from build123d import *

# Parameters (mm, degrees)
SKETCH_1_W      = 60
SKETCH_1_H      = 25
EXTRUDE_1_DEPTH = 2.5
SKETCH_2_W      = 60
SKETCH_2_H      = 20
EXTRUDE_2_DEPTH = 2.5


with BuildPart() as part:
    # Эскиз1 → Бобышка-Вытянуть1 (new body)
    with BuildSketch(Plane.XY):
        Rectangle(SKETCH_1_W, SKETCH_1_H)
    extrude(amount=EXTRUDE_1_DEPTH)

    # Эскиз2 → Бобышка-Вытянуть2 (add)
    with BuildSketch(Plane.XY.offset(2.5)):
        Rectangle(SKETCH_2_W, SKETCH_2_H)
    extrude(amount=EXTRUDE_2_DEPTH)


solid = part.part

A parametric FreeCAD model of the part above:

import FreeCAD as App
import Part
import Sketcher

V = App.Vector

doc = App.newDocument("Part")
body = doc.addObject("PartDesign::Body", "Body")

# Sketch on XY plane
sketch1 = doc.addObject("Sketcher::SketchObject", "Sketch")
body.addObject(sketch1)
sketch1.AttachmentSupport = (doc.XY_Plane, [""])
sketch1.MapMode = "FlatFace"
sketch1.addGeometry([
    Part.LineSegment(V(-30, 12.5, 0), V(-30, -12.5, 0)),
    Part.LineSegment(V(-30, -12.5, 0), V(30, -12.5, 0)),
    Part.LineSegment(V(30, -12.5, 0), V(30, 12.5, 0)),
    Part.LineSegment(V(30, 12.5, 0), V(-30, 12.5, 0)),
], False)
sketch1.addConstraint([
    Sketcher.Constraint("Coincident", 0, 2, 1, 1),
    Sketcher.Constraint("Coincident", 1, 2, 2, 1),
    Sketcher.Constraint("Coincident", 2, 2, 3, 1),
    Sketcher.Constraint("Coincident", 3, 2, 0, 1),
    Sketcher.Constraint("Vertical", 0),
    Sketcher.Constraint("Horizontal", 1),
    Sketcher.Constraint("Vertical", 2),
    Sketcher.Constraint("Horizontal", 3),
    Sketcher.Constraint("Symmetric", 0, 2, 2, 2, -1, 1),
    Sketcher.Constraint("DistanceX", 1, 1, 1, 2, 60.0),
    Sketcher.Constraint("DistanceY", 0, 2, 0, 1, 25.0),
])
pad1 = doc.addObject("PartDesign::Pad", "Pad")
body.addObject(pad1)
pad1.Profile = sketch1
pad1.Length = 2.5

# Sketch on XY plane
sketch2 = doc.addObject("Sketcher::SketchObject", "Sketch001")
body.addObject(sketch2)
sketch2.AttachmentSupport = (doc.XY_Plane, [""])
sketch2.MapMode = "FlatFace"
sketch2.AttachmentOffset = App.Placement(V(0, 0, 2.5), App.Rotation())
sketch2.addGeometry([
    Part.LineSegment(V(-30, 10, 0), V(-30, -10, 0)),
    Part.LineSegment(V(-30, -10, 0), V(30, -10, 0)),
    Part.LineSegment(V(30, -10, 0), V(30, 10, 0)),
    Part.LineSegment(V(30, 10, 0), V(-30, 10, 0)),
], False)
sketch2.addConstraint([
    Sketcher.Constraint("Coincident", 0, 2, 1, 1),
    Sketcher.Constraint("Coincident", 1, 2, 2, 1),
    Sketcher.Constraint("Coincident", 2, 2, 3, 1),
    Sketcher.Constraint("Coincident", 3, 2, 0, 1),
    Sketcher.Constraint("Vertical", 0),
    Sketcher.Constraint("Horizontal", 1),
    Sketcher.Constraint("Vertical", 2),
    Sketcher.Constraint("Horizontal", 3),
    Sketcher.Constraint("Symmetric", 0, 2, 2, 2, -1, 1),
    Sketcher.Constraint("DistanceX", 1, 1, 1, 2, 60.0),
    Sketcher.Constraint("DistanceY", 0, 2, 0, 1, 20.0),
])
pad2 = doc.addObject("PartDesign::Pad", "Pad001")
body.addObject(pad2)
pad2.Profile = sketch2
pad2.Length = 2.5

doc.recompute()
